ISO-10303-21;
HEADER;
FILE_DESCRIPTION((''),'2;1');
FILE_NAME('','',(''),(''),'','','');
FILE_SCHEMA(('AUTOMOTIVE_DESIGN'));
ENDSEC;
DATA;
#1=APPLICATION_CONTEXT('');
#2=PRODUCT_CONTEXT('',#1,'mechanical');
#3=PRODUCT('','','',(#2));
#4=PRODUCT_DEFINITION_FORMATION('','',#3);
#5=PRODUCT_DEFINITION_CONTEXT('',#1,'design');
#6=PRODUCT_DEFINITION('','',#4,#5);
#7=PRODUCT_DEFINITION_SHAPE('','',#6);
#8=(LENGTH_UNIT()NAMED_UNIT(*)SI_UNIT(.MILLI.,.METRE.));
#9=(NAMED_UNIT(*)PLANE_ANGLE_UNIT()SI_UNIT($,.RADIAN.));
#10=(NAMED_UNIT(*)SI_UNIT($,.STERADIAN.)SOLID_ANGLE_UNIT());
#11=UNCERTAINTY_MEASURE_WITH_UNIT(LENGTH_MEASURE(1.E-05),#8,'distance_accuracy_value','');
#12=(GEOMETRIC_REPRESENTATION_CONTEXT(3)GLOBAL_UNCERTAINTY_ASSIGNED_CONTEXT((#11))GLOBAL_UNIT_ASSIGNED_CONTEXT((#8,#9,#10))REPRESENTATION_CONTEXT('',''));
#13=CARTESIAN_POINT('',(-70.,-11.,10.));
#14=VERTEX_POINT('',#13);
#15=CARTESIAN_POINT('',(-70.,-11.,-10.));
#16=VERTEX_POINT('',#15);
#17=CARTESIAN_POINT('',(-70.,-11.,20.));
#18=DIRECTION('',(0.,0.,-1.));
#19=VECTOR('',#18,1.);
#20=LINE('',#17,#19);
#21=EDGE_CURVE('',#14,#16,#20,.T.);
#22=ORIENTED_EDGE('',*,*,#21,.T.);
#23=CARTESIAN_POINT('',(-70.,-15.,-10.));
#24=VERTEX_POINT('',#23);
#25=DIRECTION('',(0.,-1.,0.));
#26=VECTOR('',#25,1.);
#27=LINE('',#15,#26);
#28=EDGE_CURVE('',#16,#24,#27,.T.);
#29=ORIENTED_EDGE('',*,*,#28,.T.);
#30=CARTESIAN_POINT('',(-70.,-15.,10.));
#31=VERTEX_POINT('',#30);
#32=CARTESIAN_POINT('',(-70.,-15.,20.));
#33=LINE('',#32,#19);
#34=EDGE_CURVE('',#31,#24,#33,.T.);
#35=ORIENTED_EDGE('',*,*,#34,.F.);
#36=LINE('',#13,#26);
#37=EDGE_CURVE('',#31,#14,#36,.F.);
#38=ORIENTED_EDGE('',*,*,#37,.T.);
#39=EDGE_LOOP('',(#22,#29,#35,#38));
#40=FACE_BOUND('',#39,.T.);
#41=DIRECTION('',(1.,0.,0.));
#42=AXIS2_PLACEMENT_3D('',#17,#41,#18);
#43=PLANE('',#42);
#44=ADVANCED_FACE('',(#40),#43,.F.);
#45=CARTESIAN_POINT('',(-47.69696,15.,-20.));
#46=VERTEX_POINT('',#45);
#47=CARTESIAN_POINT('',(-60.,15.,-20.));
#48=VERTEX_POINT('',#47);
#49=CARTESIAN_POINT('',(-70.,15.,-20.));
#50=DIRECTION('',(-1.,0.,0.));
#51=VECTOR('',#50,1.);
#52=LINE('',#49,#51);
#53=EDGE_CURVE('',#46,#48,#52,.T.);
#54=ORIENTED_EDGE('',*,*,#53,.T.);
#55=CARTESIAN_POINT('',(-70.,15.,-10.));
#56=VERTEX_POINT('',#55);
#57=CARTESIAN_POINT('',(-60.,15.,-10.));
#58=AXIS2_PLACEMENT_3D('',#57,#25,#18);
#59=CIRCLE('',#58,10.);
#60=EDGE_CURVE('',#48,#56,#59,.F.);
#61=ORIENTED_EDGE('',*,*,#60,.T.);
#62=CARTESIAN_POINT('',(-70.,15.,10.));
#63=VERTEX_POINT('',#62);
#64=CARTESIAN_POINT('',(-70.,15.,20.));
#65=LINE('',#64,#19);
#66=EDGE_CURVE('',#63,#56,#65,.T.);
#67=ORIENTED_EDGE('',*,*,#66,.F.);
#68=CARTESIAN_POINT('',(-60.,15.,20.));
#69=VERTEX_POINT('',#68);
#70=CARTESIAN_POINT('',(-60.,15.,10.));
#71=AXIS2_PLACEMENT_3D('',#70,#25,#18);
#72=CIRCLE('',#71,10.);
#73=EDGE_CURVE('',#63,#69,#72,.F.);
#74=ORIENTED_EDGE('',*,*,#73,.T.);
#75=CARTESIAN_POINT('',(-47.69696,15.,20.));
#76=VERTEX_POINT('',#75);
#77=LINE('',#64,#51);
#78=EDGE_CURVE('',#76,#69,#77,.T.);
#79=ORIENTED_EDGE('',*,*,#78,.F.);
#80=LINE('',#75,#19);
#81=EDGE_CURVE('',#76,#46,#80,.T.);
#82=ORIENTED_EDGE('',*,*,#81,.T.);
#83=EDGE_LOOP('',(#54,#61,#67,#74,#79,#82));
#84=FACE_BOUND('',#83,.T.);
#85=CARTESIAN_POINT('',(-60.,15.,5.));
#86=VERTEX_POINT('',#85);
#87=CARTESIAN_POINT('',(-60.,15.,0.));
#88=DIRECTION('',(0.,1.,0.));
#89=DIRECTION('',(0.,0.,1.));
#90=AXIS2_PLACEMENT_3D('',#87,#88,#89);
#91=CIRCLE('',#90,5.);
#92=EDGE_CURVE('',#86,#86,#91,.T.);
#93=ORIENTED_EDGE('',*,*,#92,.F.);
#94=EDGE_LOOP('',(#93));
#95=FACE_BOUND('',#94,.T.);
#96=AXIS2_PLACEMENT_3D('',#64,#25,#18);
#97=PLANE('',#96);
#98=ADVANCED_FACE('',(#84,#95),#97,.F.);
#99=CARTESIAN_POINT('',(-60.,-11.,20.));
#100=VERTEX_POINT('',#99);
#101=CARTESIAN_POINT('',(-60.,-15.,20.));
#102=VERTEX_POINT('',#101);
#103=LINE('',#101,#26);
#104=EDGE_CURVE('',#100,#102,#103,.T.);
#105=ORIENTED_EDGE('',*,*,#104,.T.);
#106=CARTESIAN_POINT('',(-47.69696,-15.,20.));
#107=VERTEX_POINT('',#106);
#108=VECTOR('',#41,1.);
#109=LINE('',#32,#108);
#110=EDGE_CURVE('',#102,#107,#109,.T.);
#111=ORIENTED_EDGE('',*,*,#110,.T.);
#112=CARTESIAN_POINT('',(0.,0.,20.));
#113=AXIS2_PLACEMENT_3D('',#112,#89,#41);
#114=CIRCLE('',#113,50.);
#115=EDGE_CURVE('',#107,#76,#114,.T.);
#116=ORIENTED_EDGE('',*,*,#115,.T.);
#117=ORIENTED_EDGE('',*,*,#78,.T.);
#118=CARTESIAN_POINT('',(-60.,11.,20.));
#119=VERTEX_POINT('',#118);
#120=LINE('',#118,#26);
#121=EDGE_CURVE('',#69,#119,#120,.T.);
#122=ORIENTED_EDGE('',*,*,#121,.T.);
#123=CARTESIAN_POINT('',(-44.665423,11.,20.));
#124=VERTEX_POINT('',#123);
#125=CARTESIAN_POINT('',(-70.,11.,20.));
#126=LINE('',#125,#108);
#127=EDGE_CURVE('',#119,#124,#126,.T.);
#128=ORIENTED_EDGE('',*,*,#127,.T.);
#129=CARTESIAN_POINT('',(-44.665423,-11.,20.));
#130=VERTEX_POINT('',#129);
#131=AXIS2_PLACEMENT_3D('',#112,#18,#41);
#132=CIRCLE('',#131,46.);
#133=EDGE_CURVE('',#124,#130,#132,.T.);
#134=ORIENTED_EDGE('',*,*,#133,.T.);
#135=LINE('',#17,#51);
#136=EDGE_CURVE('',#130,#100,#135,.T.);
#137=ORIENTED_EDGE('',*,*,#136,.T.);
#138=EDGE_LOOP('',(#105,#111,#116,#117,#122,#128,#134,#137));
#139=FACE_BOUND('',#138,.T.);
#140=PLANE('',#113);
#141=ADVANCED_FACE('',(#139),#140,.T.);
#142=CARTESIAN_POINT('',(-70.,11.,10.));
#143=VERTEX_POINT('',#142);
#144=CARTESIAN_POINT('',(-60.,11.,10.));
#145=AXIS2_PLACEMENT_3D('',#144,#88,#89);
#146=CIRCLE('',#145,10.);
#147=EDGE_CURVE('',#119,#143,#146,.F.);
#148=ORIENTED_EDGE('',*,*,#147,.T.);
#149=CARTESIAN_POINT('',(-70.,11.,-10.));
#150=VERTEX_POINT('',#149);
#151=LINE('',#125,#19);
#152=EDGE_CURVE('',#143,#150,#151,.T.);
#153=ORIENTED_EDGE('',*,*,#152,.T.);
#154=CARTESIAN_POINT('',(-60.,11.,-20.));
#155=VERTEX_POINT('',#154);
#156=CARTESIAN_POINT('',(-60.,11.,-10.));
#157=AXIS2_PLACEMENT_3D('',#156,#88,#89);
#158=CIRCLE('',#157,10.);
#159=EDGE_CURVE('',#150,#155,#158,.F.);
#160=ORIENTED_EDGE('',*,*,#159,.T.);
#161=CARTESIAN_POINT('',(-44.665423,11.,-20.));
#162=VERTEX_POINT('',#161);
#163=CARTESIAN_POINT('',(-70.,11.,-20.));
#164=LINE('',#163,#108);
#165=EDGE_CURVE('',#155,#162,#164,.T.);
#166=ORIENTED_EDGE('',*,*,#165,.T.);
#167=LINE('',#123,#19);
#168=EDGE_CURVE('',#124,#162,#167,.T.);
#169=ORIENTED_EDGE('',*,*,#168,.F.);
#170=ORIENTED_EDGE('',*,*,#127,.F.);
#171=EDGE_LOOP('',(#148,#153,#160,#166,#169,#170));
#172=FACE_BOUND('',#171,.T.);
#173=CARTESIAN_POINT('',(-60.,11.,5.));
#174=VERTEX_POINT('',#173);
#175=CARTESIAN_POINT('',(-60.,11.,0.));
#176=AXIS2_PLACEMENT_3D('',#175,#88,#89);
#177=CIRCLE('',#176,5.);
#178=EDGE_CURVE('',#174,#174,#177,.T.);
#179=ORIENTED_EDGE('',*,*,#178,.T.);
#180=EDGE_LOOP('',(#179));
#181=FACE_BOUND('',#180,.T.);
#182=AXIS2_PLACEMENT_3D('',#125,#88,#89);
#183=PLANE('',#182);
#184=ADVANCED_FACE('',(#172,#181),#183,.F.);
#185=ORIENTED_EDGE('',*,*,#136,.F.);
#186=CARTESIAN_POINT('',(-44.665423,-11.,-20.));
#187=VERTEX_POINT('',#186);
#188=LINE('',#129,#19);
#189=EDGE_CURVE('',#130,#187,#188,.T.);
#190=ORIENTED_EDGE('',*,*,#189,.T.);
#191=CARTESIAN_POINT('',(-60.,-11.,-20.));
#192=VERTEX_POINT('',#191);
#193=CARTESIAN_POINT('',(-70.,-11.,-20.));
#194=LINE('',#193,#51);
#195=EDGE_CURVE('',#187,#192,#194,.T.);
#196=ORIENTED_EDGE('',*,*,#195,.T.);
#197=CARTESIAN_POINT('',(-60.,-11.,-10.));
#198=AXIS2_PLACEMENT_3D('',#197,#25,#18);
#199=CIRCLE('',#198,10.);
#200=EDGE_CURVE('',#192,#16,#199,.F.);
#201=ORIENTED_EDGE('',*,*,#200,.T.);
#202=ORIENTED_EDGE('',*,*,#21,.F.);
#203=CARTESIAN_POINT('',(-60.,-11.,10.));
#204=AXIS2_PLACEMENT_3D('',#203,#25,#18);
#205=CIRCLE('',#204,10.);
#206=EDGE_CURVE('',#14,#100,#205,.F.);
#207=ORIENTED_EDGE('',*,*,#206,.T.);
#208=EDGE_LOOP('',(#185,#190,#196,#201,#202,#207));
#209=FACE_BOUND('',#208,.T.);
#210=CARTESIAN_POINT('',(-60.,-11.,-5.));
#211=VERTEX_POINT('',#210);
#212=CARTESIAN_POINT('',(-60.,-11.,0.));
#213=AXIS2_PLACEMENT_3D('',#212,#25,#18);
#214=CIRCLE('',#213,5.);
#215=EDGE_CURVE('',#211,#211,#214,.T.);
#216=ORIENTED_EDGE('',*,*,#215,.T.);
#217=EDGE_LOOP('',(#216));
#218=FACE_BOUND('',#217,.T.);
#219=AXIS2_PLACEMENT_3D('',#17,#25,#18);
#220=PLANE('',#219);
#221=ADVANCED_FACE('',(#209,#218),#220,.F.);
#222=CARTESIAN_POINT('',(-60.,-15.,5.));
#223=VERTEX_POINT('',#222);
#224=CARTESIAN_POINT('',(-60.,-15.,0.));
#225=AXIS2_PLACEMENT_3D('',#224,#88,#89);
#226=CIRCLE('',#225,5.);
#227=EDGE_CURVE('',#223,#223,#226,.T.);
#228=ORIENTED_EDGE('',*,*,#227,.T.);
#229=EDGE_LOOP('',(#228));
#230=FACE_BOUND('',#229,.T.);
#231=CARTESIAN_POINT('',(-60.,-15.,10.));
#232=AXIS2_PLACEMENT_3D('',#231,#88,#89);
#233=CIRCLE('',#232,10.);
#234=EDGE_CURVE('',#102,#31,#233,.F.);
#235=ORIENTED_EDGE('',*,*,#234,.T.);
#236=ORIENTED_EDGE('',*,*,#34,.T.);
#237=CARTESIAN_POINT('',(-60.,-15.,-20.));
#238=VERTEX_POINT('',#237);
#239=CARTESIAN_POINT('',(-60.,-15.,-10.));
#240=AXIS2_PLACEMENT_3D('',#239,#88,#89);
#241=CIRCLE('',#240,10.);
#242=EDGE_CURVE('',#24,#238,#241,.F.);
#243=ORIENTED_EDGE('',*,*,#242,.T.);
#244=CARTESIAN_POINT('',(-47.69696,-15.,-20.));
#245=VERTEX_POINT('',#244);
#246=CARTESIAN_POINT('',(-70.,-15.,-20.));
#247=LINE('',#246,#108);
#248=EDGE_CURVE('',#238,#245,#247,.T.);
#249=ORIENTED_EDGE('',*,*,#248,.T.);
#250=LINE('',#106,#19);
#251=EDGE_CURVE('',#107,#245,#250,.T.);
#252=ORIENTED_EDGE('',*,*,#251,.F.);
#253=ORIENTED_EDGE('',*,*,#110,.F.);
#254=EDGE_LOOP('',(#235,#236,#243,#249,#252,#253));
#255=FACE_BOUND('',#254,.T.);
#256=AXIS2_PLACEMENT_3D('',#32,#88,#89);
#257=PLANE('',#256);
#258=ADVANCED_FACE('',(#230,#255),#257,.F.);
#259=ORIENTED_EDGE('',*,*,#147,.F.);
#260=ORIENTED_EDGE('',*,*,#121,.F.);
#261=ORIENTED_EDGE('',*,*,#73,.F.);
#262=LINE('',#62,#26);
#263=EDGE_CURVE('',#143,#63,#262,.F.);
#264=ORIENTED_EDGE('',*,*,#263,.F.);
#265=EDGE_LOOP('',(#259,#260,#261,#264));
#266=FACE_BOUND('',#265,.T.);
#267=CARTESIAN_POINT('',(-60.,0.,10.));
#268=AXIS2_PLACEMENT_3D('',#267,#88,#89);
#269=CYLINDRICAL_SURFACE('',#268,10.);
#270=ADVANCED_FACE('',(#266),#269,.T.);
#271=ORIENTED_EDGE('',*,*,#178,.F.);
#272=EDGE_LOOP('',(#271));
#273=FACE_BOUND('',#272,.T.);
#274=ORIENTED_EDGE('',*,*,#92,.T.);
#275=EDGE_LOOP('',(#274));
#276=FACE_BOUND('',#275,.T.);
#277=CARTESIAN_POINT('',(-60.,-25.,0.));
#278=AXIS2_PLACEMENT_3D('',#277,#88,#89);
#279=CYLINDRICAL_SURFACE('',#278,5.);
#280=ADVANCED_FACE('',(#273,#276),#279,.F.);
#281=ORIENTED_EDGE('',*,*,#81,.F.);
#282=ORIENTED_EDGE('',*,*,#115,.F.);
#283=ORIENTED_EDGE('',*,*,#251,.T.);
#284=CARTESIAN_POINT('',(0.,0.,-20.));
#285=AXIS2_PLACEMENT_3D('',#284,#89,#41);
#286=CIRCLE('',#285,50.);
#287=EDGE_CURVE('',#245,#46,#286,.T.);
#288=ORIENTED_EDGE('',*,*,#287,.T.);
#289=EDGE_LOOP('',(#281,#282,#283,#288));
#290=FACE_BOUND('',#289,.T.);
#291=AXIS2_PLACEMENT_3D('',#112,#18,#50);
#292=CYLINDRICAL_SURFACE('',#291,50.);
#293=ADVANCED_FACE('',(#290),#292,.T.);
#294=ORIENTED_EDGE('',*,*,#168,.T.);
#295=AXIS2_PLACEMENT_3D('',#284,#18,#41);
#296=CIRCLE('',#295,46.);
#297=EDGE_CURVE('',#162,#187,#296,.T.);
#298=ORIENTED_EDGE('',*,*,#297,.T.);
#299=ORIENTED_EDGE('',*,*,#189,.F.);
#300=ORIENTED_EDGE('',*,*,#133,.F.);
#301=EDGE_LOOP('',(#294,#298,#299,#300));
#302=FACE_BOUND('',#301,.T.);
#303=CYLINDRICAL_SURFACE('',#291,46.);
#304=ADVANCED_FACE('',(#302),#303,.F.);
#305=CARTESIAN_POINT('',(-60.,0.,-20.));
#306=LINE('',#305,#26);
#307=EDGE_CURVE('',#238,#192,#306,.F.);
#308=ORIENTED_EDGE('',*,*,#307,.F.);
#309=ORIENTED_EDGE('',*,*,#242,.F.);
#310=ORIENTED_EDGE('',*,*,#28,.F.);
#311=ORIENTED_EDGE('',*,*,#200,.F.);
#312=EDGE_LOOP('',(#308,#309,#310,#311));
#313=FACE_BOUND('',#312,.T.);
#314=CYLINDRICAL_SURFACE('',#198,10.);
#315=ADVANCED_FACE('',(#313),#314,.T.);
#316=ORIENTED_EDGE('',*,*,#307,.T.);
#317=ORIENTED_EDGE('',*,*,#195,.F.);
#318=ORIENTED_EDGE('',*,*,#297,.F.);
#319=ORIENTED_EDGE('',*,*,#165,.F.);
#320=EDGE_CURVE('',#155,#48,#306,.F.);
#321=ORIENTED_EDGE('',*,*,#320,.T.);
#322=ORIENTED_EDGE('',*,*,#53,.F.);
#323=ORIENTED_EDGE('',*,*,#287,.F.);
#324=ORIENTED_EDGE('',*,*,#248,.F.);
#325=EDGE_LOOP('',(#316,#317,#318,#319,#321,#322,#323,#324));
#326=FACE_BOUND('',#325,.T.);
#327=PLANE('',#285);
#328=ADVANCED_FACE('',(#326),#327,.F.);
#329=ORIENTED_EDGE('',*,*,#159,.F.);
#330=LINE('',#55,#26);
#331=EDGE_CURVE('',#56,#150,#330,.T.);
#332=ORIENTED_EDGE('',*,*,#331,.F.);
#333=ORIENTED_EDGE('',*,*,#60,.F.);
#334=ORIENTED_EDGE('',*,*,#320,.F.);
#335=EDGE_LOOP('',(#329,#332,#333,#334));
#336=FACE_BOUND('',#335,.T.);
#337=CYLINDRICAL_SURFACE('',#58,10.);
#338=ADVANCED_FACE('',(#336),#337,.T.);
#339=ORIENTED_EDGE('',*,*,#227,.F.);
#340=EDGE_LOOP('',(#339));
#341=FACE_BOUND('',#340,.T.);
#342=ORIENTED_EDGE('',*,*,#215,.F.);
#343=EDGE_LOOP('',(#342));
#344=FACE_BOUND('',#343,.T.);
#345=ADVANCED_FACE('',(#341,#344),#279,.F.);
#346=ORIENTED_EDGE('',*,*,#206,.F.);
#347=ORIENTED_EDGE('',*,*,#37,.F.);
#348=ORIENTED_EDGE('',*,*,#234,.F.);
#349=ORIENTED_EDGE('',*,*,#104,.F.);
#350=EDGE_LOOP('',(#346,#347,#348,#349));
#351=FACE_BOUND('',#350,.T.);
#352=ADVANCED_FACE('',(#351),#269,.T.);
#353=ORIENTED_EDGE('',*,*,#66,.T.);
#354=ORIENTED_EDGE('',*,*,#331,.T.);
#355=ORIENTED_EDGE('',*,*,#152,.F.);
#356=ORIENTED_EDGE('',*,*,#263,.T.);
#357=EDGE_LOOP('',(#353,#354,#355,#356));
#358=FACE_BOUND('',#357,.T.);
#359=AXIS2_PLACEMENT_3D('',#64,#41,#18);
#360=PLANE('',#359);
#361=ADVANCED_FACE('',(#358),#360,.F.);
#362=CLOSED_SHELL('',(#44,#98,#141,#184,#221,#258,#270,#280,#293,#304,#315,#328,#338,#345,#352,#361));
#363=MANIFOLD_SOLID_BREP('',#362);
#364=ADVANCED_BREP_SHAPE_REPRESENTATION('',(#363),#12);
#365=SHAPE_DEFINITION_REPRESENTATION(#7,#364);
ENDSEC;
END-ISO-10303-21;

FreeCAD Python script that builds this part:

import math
import FreeCAD as App
import Part
import Sketcher

V = App.Vector


def edges_at(feature, points):
    """Names of the edges that pass closest to the given points."""
    edges = feature.Shape.Edges
    near = lambda p: min(range(len(edges)), key=lambda i: edges[i].distToShape(Part.Vertex(*p))[0])
    return sorted({f"Edge{near(p) + 1}" for p in points})

doc = App.newDocument("Part")
body = doc.addObject("PartDesign::Body", "Body")

# Sketch on XY plane
sketch1 = body.newObject("Sketcher::SketchObject", "Sketch")
sketch1.AttachmentSupport = (doc.getObject("XY_Plane"), [""])
sketch1.MapMode = "FlatFace"
sketch1.addGeometry(Part.LineSegment(V(-47.69696, 15, 0), V(-70, 15, 0)), False)
sketch1.addGeometry(Part.LineSegment(V(-70, 15, 0), V(-70, 11, 0)), False)
sketch1.addGeometry(Part.LineSegment(V(-70, 11, 0), V(-44.665423, 11, 0)), False)
sketch1.addGeometry(Part.ArcOfCircle(Part.Circle(V(0, 0, 0), V(0, 0, 1), 46), math.radians(-166.164776), math.radians(166.164776)), False)
sketch1.addGeometry(Part.LineSegment(V(-44.665423, -11, 0), V(-70, -11, 0)), False)
sketch1.addGeometry(Part.LineSegment(V(-70, -11, 0), V(-70, -15, 0)), False)
sketch1.addGeometry(Part.LineSegment(V(-70, -15, 0), V(-47.69696, -15, 0)), False)
sketch1.addGeometry(Part.ArcOfCircle(Part.Circle(V(0, 0, 0), V(0, 0, 1), 50), math.radians(-162.542397), math.radians(162.542397)), False)
sketch1.addConstraint(Sketcher.Constraint("Coincident", 0, 2, 1, 1))
sketch1.addConstraint(Sketcher.Constraint("Coincident", 1, 2, 2, 1))
sketch1.addConstraint(Sketcher.Constraint("Coincident", 2, 2, 3, 2))
sketch1.addConstraint(Sketcher.Constraint("Coincident", 3, 1, 4, 1))
sketch1.addConstraint(Sketcher.Constraint("Coincident", 4, 2, 5, 1))
sketch1.addConstraint(Sketcher.Constraint("Coincident", 5, 2, 6, 1))
sketch1.addConstraint(Sketcher.Constraint("Coincident", 6, 2, 7, 1))
sketch1.addConstraint(Sketcher.Constraint("Coincident", 7, 2, 0, 1))
sketch1.addConstraint(Sketcher.Constraint("Horizontal", 0))
sketch1.addConstraint(Sketcher.Constraint("Vertical", 1))
sketch1.addConstraint(Sketcher.Constraint("Horizontal", 2))
sketch1.addConstraint(Sketcher.Constraint("Horizontal", 4))
sketch1.addConstraint(Sketcher.Constraint("Vertical", 5))
sketch1.addConstraint(Sketcher.Constraint("Horizontal", 6))
sketch1.addConstraint(Sketcher.Constraint("Coincident", 3, 3, -1, 1))
sketch1.addConstraint(Sketcher.Constraint("Coincident", 7, 3, -1, 1))
sketch1.addConstraint(Sketcher.Constraint("Symmetric", 1, 2, 4, 2, -1))
sketch1.addConstraint(Sketcher.Constraint("Vertical", 6, 2, 7, 2))
sketch1.addConstraint(Sketcher.Constraint("Radius", 3, 46.0))
sketch1.addConstraint(Sketcher.Constraint("Radius", 7, 50.0))
sketch1.addConstraint(Sketcher.Constraint("DistanceY", 1, 2, 1, 1, 4.0))
sketch1.addConstraint(Sketcher.Constraint("DistanceX", 0, 2, -1, 1, 70.0))
sketch1.addConstraint(Sketcher.Constraint("DistanceY", -1, 1, 0, 2, 15.0))
pad1 = body.newObject("PartDesign::Pad", "Pad")
pad1.Profile = sketch1
pad1.Length = 40
pad1.Midplane = True
doc.recompute()

fillet = body.newObject("PartDesign::Fillet", "Fillet")
fillet.Base = (pad1, edges_at(pad1, [
    (-70, -13, -20),
    (-70, 13, 20),
    (-70, -13, 20),
    (-70, 13, -20),
]))
fillet.Radius = 10

# Sketch on XZ plane
sketch2 = body.newObject("Sketcher::SketchObject", "Sketch001")
sketch2.AttachmentSupport = (doc.getObject("XZ_Plane"), [""])
sketch2.MapMode = "FlatFace"
sketch2.AttachmentOffset = App.Placement(V(0, 0, -15), App.Rotation())
sketch2.addGeometry(Part.Circle(V(-60, 0, 0), V(0, 0, 1), 5), False)
sketch2.addConstraint(Sketcher.Constraint("PointOnObject", 0, 3, -1))
sketch2.addConstraint(Sketcher.Constraint("Diameter", 0, 10.0))
sketch2.addConstraint(Sketcher.Constraint("DistanceX", 0, 3, -1, 1, 60.0))
pocket1 = body.newObject("PartDesign::Pocket", "Pocket")
pocket1.Profile = sketch2
pocket1.Length = 40
pocket1.Reversed = True

doc.recompute()
